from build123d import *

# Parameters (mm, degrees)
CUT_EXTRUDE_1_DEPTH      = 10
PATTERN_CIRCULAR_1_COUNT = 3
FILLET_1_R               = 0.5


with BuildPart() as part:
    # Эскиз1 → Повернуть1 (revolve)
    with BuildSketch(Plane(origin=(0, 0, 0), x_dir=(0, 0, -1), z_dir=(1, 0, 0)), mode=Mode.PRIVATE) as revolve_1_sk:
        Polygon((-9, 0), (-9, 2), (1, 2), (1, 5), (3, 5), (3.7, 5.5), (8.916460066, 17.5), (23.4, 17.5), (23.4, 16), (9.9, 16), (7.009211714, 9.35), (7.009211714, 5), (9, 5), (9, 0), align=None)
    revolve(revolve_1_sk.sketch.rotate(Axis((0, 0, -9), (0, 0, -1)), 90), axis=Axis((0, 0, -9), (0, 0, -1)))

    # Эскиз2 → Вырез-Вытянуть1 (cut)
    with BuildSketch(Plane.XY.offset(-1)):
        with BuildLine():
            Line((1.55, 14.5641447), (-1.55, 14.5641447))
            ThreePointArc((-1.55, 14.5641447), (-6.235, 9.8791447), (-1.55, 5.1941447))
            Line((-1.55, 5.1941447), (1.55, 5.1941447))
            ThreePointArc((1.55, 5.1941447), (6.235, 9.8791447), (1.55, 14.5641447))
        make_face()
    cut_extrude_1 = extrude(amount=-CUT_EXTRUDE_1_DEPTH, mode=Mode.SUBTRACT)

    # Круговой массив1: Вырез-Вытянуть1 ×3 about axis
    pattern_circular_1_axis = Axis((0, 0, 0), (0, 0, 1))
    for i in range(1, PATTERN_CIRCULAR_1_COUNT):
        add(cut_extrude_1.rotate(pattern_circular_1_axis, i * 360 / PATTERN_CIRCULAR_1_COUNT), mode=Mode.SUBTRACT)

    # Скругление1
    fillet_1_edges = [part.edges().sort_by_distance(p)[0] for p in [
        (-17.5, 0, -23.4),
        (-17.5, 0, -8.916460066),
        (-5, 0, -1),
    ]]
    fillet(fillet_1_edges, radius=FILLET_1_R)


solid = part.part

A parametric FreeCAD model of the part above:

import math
import FreeCAD as App
import Part
import Sketcher
Q = App.Units.Quantity


def edges_at(feature, points):
    """Names of the edges that pass closest to the given points."""
    edges = feature.Shape.Edges
    near = lambda p: min(range(len(edges)), key=lambda i: edges[i].distToShape(Part.Vertex(*p))[0])
    return sorted({f"Edge{near(p) + 1}" for p in points})


def add_polygon(sketch, points):
    """Adds a closed chain of lines whose ends are joined by coincident constraints."""
    first, n = sketch.GeometryCount, len(points)
    for a, b in zip(points, points[1:] + points[:1]):
        sketch.addGeometry(Part.LineSegment(App.Vector(*a, 0), App.Vector(*b, 0)), False)
    for i in range(n):
        sketch.addConstraint(Sketcher.Constraint("Coincident", first + i, 2, first + (i + 1) % n, 1))

doc = App.newDocument("Part")
body = doc.addObject("PartDesign::Body", "Body")

sketch1 = body.newObject("Sketcher::SketchObject", "Sketch")
sketch1.AttachmentSupport = (doc.getObject("YZ_Plane"), [""])
sketch1.MapMode = "FlatFace"
add_polygon(sketch1, [(2, 9), (0, 9), (0, -9), (5, -9), (5, -7), (9.3, -7), (16, -9.9), (16, -23.4), (17.5, -23.4), (17.5, -8.9), (5.5, -3.7), (5, -3), (5, -1), (2, -1)])
sketch1.addConstraint([
    Sketcher.Constraint("Horizontal", 0),
    Sketcher.Constraint("Vertical", 1),
    Sketcher.Constraint("Horizontal", 2),
    Sketcher.Constraint("Vertical", 3),
    Sketcher.Constraint("Horizontal", 4),
    Sketcher.Constraint("Vertical", 6),
    Sketcher.Constraint("Horizontal", 7),
    Sketcher.Constraint("Vertical", 8),
    Sketcher.Constraint("Vertical", 11),
    Sketcher.Constraint("Horizontal", 12),
    Sketcher.Constraint("Vertical", 13),
    Sketcher.Constraint("Symmetric", 0, 2, 1, 2, -1, 1),
    Sketcher.Constraint("Parallel", 5, 9),
    Sketcher.Constraint("Vertical", 3, 2, 10, 2),
    Sketcher.Constraint("Equal", 0, 11),
    Sketcher.Constraint("DistanceX", 0, 2, 0, 1, Q("2 mm")),
    Sketcher.Constraint("DistanceX", 2, 1, 2, 2, Q("5 mm")),
    Sketcher.Constraint("DistanceY", 1, 2, 1, 1, Q("18 mm")),
    Sketcher.Constraint("DistanceY", 13, 1, 13, 2, Q("10 mm")),
    Sketcher.Constraint("DistanceX", 7, 1, 7, 2, Q("1.5 mm")),
    Sketcher.Constraint("DistanceY", 6, 2, 6, 1, Q("13.5 mm")),
    Sketcher.Constraint("DistanceX", -1, 1, 5, 2, Q("16 mm")),
    Sketcher.Constraint("DistanceX", 4, 1, 4, 2, Q("4.35 mm")),
    Sketcher.Constraint("DistanceY", 5, 2, -1, 1, Q("9.9 mm")),
    Sketcher.Constraint("DistanceX", -1, 1, 9, 2, Q("5.5 mm")),
    Sketcher.Constraint("DistanceY", 9, 2, -1, 1, Q("3.7 mm")),
    Sketcher.Constraint("DistanceY", 3, 1, 3, 2, Q("1.990788 mm")),
])
revolution = body.newObject("PartDesign::Revolution", "Revolution")
revolution.Profile = sketch1
revolution.ReferenceAxis = (sketch1, ["V_Axis"])
revolution.Angle = 360

sketch2 = body.newObject("Sketcher::SketchObject", "Sketch001")
sketch2.AttachmentSupport = (doc.getObject("XY_Plane"), [""])
sketch2.MapMode = "FlatFace"
sketch2.AttachmentOffset = App.Placement(App.Vector(0, 0, -1), App.Rotation())
sketch2.addGeometry([
    Part.LineSegment(App.Vector(1.6, 14.6, 0), App.Vector(-1.6, 14.6, 0)),
    Part.ArcOfCircle(Part.Circle(App.Vector(-1.6, 9.9, 0), App.Vector(0, 0, 1), 4.7), math.radians(90), math.radians(270)),
    Part.LineSegment(App.Vector(-1.6, 5.2, 0), App.Vector(1.6, 5.2, 0)),
    Part.ArcOfCircle(Part.Circle(App.Vector(1.6, 9.9, 0), App.Vector(0, 0, 1), 4.7), math.radians(-90), math.radians(90)),
], False)
sketch2.addConstraint([
    Sketcher.Constraint("Tangent", 0, 2, 1, 1),
    Sketcher.Constraint("Tangent", 1, 2, 2, 1),
    Sketcher.Constraint("Tangent", 2, 2, 3, 1),
    Sketcher.Constraint("Tangent", 3, 2, 0, 1),
    Sketcher.Constraint("Horizontal", 0),
    Sketcher.Constraint("Horizontal", 2),
    Sketcher.Constraint("DistanceX", 0, 2, 0, 1, Q("3.1 mm")),
    Sketcher.Constraint("Radius", 1, Q("4.685 mm")),
    Sketcher.Constraint("DistanceX", 1, 3, -1, 1, Q("1.55 mm")),
    Sketcher.Constraint("DistanceY", -1, 1, 1, 3, Q("9.879145 mm")),
])
pocket1 = body.newObject("PartDesign::Pocket", "Pocket")
pocket1.Profile = sketch2
pocket1.Length = 10
doc.recompute()

polarpattern = body.newObject("PartDesign::PolarPattern", "PolarPattern")
polarpattern.Originals = [pocket1]
polarpattern.Axis = (doc.getObject("Z_Axis"), [""])
polarpattern.Angle = 360
polarpattern.Occurrences = 3
body.Tip = polarpattern
doc.recompute()

fillet = body.newObject("PartDesign::Fillet", "Fillet")
fillet.Base = (polarpattern, edges_at(polarpattern, [(-17.5, 0, -23.4), (-17.5, 0, -8.916), (-5, 0, -1)]))
fillet.Radius = 0.5

doc.recompute()
